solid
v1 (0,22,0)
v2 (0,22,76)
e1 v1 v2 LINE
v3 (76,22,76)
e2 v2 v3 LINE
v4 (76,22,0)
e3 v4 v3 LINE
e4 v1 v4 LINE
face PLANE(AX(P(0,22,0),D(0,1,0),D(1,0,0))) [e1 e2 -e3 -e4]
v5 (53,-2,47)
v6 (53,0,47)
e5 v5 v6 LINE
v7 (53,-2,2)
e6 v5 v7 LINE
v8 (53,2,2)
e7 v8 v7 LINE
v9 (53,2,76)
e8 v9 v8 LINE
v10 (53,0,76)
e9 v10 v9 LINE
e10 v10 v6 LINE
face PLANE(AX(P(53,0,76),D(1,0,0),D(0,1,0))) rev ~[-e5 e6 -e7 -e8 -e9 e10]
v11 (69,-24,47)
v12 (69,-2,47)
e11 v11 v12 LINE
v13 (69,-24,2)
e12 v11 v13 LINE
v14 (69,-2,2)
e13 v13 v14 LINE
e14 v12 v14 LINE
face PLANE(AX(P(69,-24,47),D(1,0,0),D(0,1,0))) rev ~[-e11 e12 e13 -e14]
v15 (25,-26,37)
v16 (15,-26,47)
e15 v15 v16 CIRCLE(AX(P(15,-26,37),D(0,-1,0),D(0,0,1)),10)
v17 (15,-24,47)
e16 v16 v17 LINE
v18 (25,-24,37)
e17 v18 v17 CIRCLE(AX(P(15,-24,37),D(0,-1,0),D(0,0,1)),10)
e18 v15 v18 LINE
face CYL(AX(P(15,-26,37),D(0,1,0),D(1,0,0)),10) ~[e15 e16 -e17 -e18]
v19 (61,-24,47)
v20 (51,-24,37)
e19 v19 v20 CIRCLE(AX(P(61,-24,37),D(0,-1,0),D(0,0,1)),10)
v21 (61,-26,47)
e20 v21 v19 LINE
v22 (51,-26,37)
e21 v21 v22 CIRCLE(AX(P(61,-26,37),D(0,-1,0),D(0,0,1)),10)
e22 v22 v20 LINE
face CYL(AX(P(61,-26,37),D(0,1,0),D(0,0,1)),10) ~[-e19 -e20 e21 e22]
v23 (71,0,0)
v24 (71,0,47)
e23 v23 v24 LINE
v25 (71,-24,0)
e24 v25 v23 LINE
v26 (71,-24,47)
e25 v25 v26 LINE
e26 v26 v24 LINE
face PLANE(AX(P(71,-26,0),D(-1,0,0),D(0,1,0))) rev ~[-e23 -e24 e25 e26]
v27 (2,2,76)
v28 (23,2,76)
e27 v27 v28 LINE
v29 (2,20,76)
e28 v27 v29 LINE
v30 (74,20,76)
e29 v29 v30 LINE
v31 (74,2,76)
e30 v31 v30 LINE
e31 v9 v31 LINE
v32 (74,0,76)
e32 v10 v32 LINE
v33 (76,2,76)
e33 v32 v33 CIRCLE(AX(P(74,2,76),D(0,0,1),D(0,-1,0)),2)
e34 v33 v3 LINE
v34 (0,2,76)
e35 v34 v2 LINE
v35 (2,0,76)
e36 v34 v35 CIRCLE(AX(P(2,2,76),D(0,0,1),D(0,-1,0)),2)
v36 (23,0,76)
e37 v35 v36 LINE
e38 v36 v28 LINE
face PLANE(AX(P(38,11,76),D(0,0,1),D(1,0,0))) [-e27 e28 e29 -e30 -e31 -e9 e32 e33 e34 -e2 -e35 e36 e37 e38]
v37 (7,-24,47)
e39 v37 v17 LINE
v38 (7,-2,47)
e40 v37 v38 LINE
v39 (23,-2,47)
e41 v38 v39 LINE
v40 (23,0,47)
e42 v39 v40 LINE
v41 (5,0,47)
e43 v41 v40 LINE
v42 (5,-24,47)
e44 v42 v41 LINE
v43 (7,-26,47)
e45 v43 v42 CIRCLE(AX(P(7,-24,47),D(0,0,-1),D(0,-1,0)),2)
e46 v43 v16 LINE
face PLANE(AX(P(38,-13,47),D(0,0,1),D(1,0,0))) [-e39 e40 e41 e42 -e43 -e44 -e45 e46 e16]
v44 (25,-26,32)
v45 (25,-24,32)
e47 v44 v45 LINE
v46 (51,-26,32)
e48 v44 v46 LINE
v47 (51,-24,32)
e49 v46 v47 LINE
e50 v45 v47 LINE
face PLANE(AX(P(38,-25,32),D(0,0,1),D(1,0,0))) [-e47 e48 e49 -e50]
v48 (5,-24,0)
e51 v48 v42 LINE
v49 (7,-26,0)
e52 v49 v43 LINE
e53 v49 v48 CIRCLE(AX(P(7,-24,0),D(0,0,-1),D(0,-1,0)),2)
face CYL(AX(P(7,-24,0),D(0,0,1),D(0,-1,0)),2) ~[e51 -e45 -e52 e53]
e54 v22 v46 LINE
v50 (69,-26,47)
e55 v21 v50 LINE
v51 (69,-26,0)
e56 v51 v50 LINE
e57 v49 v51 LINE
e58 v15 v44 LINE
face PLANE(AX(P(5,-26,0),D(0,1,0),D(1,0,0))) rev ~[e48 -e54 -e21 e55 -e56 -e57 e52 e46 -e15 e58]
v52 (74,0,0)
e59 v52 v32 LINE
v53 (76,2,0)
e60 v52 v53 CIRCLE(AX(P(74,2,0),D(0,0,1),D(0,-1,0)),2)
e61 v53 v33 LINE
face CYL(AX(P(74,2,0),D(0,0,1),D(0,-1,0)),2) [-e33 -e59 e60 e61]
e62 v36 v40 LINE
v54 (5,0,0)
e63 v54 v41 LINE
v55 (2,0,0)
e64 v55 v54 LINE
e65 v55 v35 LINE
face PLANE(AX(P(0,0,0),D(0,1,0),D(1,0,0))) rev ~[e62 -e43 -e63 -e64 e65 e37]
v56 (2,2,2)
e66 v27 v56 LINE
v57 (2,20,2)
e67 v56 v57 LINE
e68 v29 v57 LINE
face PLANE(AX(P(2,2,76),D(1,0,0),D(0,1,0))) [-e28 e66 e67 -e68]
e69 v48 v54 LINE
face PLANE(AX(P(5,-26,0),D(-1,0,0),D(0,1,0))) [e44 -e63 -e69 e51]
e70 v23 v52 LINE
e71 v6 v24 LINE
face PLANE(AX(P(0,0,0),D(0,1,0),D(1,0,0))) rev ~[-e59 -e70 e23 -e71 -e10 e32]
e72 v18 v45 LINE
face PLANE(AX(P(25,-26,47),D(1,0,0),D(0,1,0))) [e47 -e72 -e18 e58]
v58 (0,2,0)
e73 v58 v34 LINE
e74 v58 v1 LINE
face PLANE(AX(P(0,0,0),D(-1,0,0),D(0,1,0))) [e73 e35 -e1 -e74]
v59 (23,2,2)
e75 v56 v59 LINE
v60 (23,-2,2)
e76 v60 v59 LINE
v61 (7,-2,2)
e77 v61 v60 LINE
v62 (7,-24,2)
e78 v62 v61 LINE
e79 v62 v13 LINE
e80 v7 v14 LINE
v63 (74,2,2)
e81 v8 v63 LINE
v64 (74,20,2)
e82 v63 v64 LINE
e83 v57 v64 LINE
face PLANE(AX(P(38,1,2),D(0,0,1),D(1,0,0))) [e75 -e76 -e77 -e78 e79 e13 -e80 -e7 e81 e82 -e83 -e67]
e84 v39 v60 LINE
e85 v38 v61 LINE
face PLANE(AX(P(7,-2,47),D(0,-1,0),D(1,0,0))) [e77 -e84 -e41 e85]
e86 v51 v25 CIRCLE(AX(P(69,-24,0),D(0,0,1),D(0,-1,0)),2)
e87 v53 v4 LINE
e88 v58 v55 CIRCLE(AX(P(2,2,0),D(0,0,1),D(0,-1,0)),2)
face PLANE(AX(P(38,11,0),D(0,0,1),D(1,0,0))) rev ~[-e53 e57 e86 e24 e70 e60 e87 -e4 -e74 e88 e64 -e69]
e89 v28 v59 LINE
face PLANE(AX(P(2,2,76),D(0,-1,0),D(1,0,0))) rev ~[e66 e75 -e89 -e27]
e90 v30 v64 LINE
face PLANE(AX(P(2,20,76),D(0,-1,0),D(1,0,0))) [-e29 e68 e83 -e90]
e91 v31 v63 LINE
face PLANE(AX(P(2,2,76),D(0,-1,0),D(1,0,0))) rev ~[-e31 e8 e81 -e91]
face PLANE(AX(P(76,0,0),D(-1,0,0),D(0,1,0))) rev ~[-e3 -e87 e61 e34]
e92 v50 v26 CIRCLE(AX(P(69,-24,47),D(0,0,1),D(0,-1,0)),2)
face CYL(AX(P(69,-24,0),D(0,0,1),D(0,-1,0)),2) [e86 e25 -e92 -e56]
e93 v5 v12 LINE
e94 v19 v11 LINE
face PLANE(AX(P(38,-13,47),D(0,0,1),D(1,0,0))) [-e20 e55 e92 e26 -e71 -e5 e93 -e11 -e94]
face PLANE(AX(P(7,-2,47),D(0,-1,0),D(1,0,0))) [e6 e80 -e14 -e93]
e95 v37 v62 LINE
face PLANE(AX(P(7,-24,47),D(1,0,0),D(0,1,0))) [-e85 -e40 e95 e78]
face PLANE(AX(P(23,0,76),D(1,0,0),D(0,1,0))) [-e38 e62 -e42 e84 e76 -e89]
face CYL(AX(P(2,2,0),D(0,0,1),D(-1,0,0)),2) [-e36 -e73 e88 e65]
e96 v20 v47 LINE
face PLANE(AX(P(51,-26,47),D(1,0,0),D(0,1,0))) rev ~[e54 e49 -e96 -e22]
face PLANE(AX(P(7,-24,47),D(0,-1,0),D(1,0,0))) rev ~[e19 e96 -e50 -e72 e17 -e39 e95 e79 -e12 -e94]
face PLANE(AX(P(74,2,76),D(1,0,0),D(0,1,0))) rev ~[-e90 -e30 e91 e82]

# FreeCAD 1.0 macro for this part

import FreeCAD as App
import Part
import Sketcher


def edges_at(feature, points):
    """Names of the edges that pass closest to the given points."""
    edges = feature.Shape.Edges
    near = lambda p: min(range(len(edges)), key=lambda i: edges[i].distToShape(Part.Vertex(*p))[0])
    return sorted({f"Edge{near(p) + 1}" for p in points})

doc = App.newDocument("Part")
body = doc.addObject("PartDesign::Body", "Body")

# Sketch on XY plane
sketch1 = body.newObject("Sketcher::SketchObject", "Sketch")
sketch1.AttachmentSupport = (doc.getObject("XY_Plane"), [""])
sketch1.MapMode = "FlatFace"
sketch1.addGeometry([
    Part.LineSegment(App.Vector(0, 22, 0), App.Vector(0, 0, 0)),
    Part.LineSegment(App.Vector(0, 0, 0), App.Vector(76, 0, 0)),
    Part.LineSegment(App.Vector(76, 0, 0), App.Vector(76, 22, 0)),
    Part.LineSegment(App.Vector(76, 22, 0), App.Vector(0, 22, 0)),
], False)
sketch1.addConstraint([
    Sketcher.Constraint("Coincident", 0, 2, 1, 1),
    Sketcher.Constraint("Coincident", 1, 2, 2, 1),
    Sketcher.Constraint("Coincident", 2, 2, 3, 1),
    Sketcher.Constraint("Coincident", 3, 2, 0, 1),
    Sketcher.Constraint("Vertical", 0),
    Sketcher.Constraint("Horizontal", 1),
    Sketcher.Constraint("Vertical", 2),
    Sketcher.Constraint("Horizontal", 3),
    Sketcher.Constraint("Coincident", 0, 2, -1, 1),
    Sketcher.Constraint("DistanceX", 1, 1, 1, 2, 76.0),
    Sketcher.Constraint("DistanceY", 0, 2, 0, 1, 22.0),
])
pad1 = body.newObject("PartDesign::Pad", "Pad")
pad1.Profile = sketch1
pad1.Length = 76

# Sketch on XY plane
sketch2 = body.newObject("Sketcher::SketchObject", "Sketch001")
sketch2.AttachmentSupport = (doc.getObject("XY_Plane"), [""])
sketch2.MapMode = "FlatFace"
sketch2.addGeometry([
    Part.LineSegment(App.Vector(5, 0, 0), App.Vector(5, -26, 0)),
    Part.LineSegment(App.Vector(5, -26, 0), App.Vector(71, -26, 0)),
    Part.LineSegment(App.Vector(71, -26, 0), App.Vector(71, 0, 0)),
    Part.LineSegment(App.Vector(71, 0, 0), App.Vector(5, 0, 0)),
], False)
sketch2.addConstraint([
    Sketcher.Constraint("Coincident", 0, 2, 1, 1),
    Sketcher.Constraint("Coincident", 1, 2, 2, 1),
    Sketcher.Constraint("Coincident", 2, 2, 3, 1),
    Sketcher.Constraint("Coincident", 3, 2, 0, 1),
    Sketcher.Constraint("Vertical", 0),
    Sketcher.Constraint("Horizontal", 1),
    Sketcher.Constraint("Vertical", 2),
    Sketcher.Constraint("Horizontal", 3),
    Sketcher.Constraint("PointOnObject", 2, 2, -1),
    Sketcher.Constraint("DistanceX", 1, 1, 1, 2, 66.0),
    Sketcher.Constraint("DistanceY", 0, 2, 0, 1, 26.0),
    Sketcher.Constraint("DistanceX", -1, 1, 0, 2, 5.0),
])
pad2 = body.newObject("PartDesign::Pad", "Pad001")
pad2.Profile = sketch2
pad2.Length = 47

# Sketch on XY plane
sketch3 = body.newObject("Sketcher::SketchObject", "Sketch002")
sketch3.AttachmentSupport = (doc.getObject("XY_Plane"), [""])
sketch3.MapMode = "FlatFace"
sketch3.AttachmentOffset = App.Placement(App.Vector(0, 0, 47), App.Rotation())
sketch3.addGeometry([
    Part.LineSegment(App.Vector(7, -2, 0), App.Vector(7, -24, 0)),
    Part.LineSegment(App.Vector(7, -24, 0), App.Vector(69, -24, 0)),
    Part.LineSegment(App.Vector(69, -24, 0), App.Vector(69, -2, 0)),
    Part.LineSegment(App.Vector(69, -2, 0), App.Vector(7, -2, 0)),
], False)
sketch3.addConstraint([
    Sketcher.Constraint("Coincident", 0, 2, 1, 1),
    Sketcher.Constraint("Coincident", 1, 2, 2, 1),
    Sketcher.Constraint("Coincident", 2, 2, 3, 1),
    Sketcher.Constraint("Coincident", 3, 2, 0, 1),
    Sketcher.Constraint("Vertical", 0),
    Sketcher.Constraint("Horizontal", 1),
    Sketcher.Constraint("Vertical", 2),
    Sketcher.Constraint("Horizontal", 3),
    Sketcher.Constraint("DistanceX", 1, 1, 1, 2, 62.0),
    Sketcher.Constraint("DistanceY", 0, 2, 0, 1, 22.0),
    Sketcher.Constraint("DistanceX", -1, 1, 0, 2, 7.0),
    Sketcher.Constraint("DistanceY", 0, 2, -1, 1, 24.0),
])
pocket1 = body.newObject("PartDesign::Pocket", "Pocket")
pocket1.Profile = sketch3
pocket1.Length = 45

# Sketch on XY plane
sketch4 = body.newObject("Sketcher::SketchObject", "Sketch003")
sketch4.AttachmentSupport = (doc.getObject("XY_Plane"), [""])
sketch4.MapMode = "FlatFace"
sketch4.AttachmentOffset = App.Placement(App.Vector(0, 0, 76), App.Rotation())
sketch4.addGeometry([
    Part.LineSegment(App.Vector(2, 20, 0), App.Vector(2, 2, 0)),
    Part.LineSegment(App.Vector(2, 2, 0), App.Vector(74, 2, 0)),
    Part.LineSegment(App.Vector(74, 2, 0), App.Vector(74, 20, 0)),
    Part.LineSegment(App.Vector(74, 20, 0), App.Vector(2, 20, 0)),
], False)
sketch4.addConstraint([
    Sketcher.Constraint("Coincident", 0, 2, 1, 1),
    Sketcher.Constraint("Coincident", 1, 2, 2, 1),
    Sketcher.Constraint("Coincident", 2, 2, 3, 1),
    Sketcher.Constraint("Coincident", 3, 2, 0, 1),
    Sketcher.Constraint("Vertical", 0),
    Sketcher.Constraint("Horizontal", 1),
    Sketcher.Constraint("Vertical", 2),
    Sketcher.Constraint("Horizontal", 3),
    Sketcher.Constraint("DistanceX", 1, 1, 1, 2, 72.0),
    Sketcher.Constraint("DistanceY", 0, 2, 0, 1, 18.0),
    Sketcher.Constraint("DistanceX", -1, 1, 0, 2, 2.0),
    Sketcher.Constraint("DistanceY", -1, 1, 0, 2, 2.0),
])
pocket2 = body.newObject("PartDesign::Pocket", "Pocket001")
pocket2.Profile = sketch4
pocket2.Length = 74

# Sketch on XY plane
sketch5 = body.newObject("Sketcher::SketchObject", "Sketch004")
sketch5.AttachmentSupport = (doc.getObject("XY_Plane"), [""])
sketch5.MapMode = "FlatFace"
sketch5.AttachmentOffset = App.Placement(App.Vector(0, 0, 47), App.Rotation())
sketch5.addGeometry([
    Part.LineSegment(App.Vector(23, 0, 0), App.Vector(23, -2, 0)),
    Part.LineSegment(App.Vector(23, -2, 0), App.Vector(53, -2, 0)),
    Part.LineSegment(App.Vector(53, -2, 0), App.Vector(53, 0, 0)),
    Part.LineSegment(App.Vector(53, 0, 0), App.Vector(23, 0, 0)),
], False)
sketch5.addConstraint([
    Sketcher.Constraint("Coincident", 0, 2, 1, 1),
    Sketcher.Constraint("Coincident", 1, 2, 2, 1),
    Sketcher.Constraint("Coincident", 2, 2, 3, 1),
    Sketcher.Constraint("Coincident", 3, 2, 0, 1),
    Sketcher.Constraint("Vertical", 0),
    Sketcher.Constraint("Horizontal", 1),
    Sketcher.Constraint("Vertical", 2),
    Sketcher.Constraint("Horizontal", 3),
    Sketcher.Constraint("PointOnObject", 2, 2, -1),
    Sketcher.Constraint("DistanceX", 1, 1, 1, 2, 30.0),
    Sketcher.Constraint("DistanceY", 0, 2, 0, 1, 2.0),
    Sketcher.Constraint("DistanceX", -1, 1, 0, 2, 23.0),
])
pocket3 = body.newObject("PartDesign::Pocket", "Pocket002")
pocket3.Profile = sketch5
pocket3.Length = 45

# Sketch on XY plane
sketch6 = body.newObject("Sketcher::SketchObject", "Sketch005")
sketch6.AttachmentSupport = (doc.getObject("XY_Plane"), [""])
sketch6.MapMode = "FlatFace"
sketch6.AttachmentOffset = App.Placement(App.Vector(0, 0, 76), App.Rotation())
sketch6.addGeometry([
    Part.LineSegment(App.Vector(23, 2, 0), App.Vector(23, 0, 0)),
    Part.LineSegment(App.Vector(23, 0, 0), App.Vector(53, 0, 0)),
    Part.LineSegment(App.Vector(53, 0, 0), App.Vector(53, 2, 0)),
    Part.LineSegment(App.Vector(53, 2, 0), App.Vector(23, 2, 0)),
], False)
sketch6.addConstraint([
    Sketcher.Constraint("Coincident", 0, 2, 1, 1),
    Sketcher.Constraint("Coincident", 1, 2, 2, 1),
    Sketcher.Constraint("Coincident", 2, 2, 3, 1),
    Sketcher.Constraint("Coincident", 3, 2, 0, 1),
    Sketcher.Constraint("Vertical", 0),
    Sketcher.Constraint("Horizontal", 1),
    Sketcher.Constraint("Vertical", 2),
    Sketcher.Constraint("Horizontal", 3),
    Sketcher.Constraint("PointOnObject", 0, 2, -1),
    Sketcher.Constraint("DistanceX", 1, 1, 1, 2, 30.0),
    Sketcher.Constraint("DistanceY", 0, 2, 0, 1, 2.0),
    Sketcher.Constraint("DistanceX", -1, 1, 0, 2, 23.0),
])
pocket4 = body.newObject("PartDesign::Pocket", "Pocket003")
pocket4.Profile = sketch6
pocket4.Length = 74

# Sketch on XY plane
sketch7 = body.newObject("Sketcher::SketchObject", "Sketch006")
sketch7.AttachmentSupport = (doc.getObject("XY_Plane"), [""])
sketch7.MapMode = "FlatFace"
sketch7.AttachmentOffset = App.Placement(App.Vector(0, 0, 47), App.Rotation())
sketch7.addGeometry([
    Part.LineSegment(App.Vector(25, -24, 0), App.Vector(25, -26, 0)),
    Part.LineSegment(App.Vector(25, -26, 0), App.Vector(51, -26, 0)),
    Part.LineSegment(App.Vector(51, -26, 0), App.Vector(51, -24, 0)),
    Part.LineSegment(App.Vector(51, -24, 0), App.Vector(25, -24, 0)),
], False)
sketch7.addConstraint([
    Sketcher.Constraint("Coincident", 0, 2, 1, 1),
    Sketcher.Constraint("Coincident", 1, 2, 2, 1),
    Sketcher.Constraint("Coincident", 2, 2, 3, 1),
    Sketcher.Constraint("Coincident", 3, 2, 0, 1),
    Sketcher.Constraint("Vertical", 0),
    Sketcher.Constraint("Horizontal", 1),
    Sketcher.Constraint("Vertical", 2),
    Sketcher.Constraint("Horizontal", 3),
    Sketcher.Constraint("DistanceX", 1, 1, 1, 2, 26.0),
    Sketcher.Constraint("DistanceY", 0, 2, 0, 1, 2.0),
    Sketcher.Constraint("DistanceX", -1, 1, 0, 2, 25.0),
    Sketcher.Constraint("DistanceY", 0, 2, -1, 1, 26.0),
])
pocket5 = body.newObject("PartDesign::Pocket", "Pocket004")
pocket5.Profile = sketch7
pocket5.Length = 15
doc.recompute()

fillet = body.newObject("PartDesign::Fillet", "Fillet")
fillet.Base = (pocket5, edges_at(pocket5, [(51, -25, 47)]))
fillet.Radius = 10
doc.recompute()

fillet2 = body.newObject("PartDesign::Fillet", "Fillet001")
fillet2.Base = (fillet, edges_at(fillet, [(25, -25, 47)]))
fillet2.Radius = 10
doc.recompute()

fillet3 = body.newObject("PartDesign::Fillet", "Fillet002")
fillet3.Base = (fillet2, edges_at(fillet2, [(5, -26, 23.5)]))
fillet3.Radius = 2
doc.recompute()

fillet4 = body.newObject("PartDesign::Fillet", "Fillet003")
fillet4.Base = (fillet3, edges_at(fillet3, [(71, -26, 23.5)]))
fillet4.Radius = 2
doc.recompute()

fillet5 = body.newObject("PartDesign::Fillet", "Fillet004")
fillet5.Base = (fillet4, edges_at(fillet4, [(76, 0, 38)]))
fillet5.Radius = 2
doc.recompute()

fillet6 = body.newObject("PartDesign::Fillet", "Fillet005")
fillet6.Base = (fillet5, edges_at(fillet5, [(0, 0, 38)]))
fillet6.Radius = 2

doc.recompute()
